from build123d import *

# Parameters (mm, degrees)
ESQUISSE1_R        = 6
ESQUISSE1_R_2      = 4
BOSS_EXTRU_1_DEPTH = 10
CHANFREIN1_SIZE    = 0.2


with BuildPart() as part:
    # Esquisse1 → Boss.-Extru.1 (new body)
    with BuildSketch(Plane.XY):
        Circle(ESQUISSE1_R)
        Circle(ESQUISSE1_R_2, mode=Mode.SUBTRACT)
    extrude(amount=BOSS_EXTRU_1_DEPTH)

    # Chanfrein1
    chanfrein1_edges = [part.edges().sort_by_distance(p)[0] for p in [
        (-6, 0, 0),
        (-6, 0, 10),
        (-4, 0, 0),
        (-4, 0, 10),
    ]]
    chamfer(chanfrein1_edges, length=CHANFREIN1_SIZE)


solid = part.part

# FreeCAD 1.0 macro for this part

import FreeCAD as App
import Part
import Sketcher

V = App.Vector


def edges_at(feature, points):
    """Names of the edges that pass closest to the given points."""
    edges = feature.Shape.Edges
    near = lambda p: min(range(len(edges)), key=lambda i: edges[i].distToShape(Part.Vertex(*p))[0])
    return sorted({f"Edge{near(p) + 1}" for p in points})

doc = App.newDocument("Part")
body = doc.addObject("PartDesign::Body", "Body")

# Sketch on XY plane
sketch1 = body.newObject("Sketcher::SketchObject", "Sketch")
sketch1.AttachmentSupport = (doc.getObject("XY_Plane"), [""])
sketch1.MapMode = "FlatFace"
sketch1.addGeometry([
    Part.Circle(V(0, 0, 0), V(0, 0, 1), 6),
    Part.Circle(V(0, 0, 0), V(0, 0, 1), 4),
], False)
sketch1.addConstraint([
    Sketcher.Constraint("Coincident", 0, 3, -1, 1),
    Sketcher.Constraint("Coincident", 1, 3, -1, 1),
    Sketcher.Constraint("Diameter", 0, 12.0),
    Sketcher.Constraint("Diameter", 1, 8.0),
])
pad1 = body.newObject("PartDesign::Pad", "Pad")
pad1.Profile = sketch1
pad1.Length = 10
doc.recompute()

chamfer = body.newObject("PartDesign::Chamfer", "Chamfer")
chamfer.Base = (pad1, edges_at(pad1, [
    (-6, 0, 0),
    (-6, 0, 10),
    (-4, 0, 0),
    (-4, 0, 10),
]))
chamfer.Size = 0.2

doc.recompute()
